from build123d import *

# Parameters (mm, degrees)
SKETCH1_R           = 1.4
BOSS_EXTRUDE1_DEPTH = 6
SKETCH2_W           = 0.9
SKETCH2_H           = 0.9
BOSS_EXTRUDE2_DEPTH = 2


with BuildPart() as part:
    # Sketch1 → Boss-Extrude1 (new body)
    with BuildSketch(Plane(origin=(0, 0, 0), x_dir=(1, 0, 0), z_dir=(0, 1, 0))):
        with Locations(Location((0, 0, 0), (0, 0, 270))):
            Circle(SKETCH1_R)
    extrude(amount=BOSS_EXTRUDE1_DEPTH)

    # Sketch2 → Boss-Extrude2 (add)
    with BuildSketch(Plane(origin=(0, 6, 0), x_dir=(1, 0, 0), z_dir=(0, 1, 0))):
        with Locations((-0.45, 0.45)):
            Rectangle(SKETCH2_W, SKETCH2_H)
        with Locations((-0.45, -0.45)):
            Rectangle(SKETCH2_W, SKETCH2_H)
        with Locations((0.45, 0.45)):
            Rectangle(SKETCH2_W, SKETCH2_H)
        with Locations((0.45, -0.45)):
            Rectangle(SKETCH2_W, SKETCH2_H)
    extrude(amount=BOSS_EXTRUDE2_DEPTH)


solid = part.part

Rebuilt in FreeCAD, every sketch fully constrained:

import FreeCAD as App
import Part
import Sketcher
from FreeCAD import Vector


def add_polygon(sketch, points):
    """Adds a closed chain of lines whose ends are joined by coincident constraints."""
    first, n = sketch.GeometryCount, len(points)
    for a, b in zip(points, points[1:] + points[:1]):
        sketch.addGeometry(Part.LineSegment(App.Vector(*a, 0), App.Vector(*b, 0)), False)
    for i in range(n):
        sketch.addConstraint(Sketcher.Constraint("Coincident", first + i, 2, first + (i + 1) % n, 1))

doc = App.newDocument("Part")
body = doc.addObject("PartDesign::Body", "Body")

sketch1 = body.newObject("Sketcher::SketchObject", "Sketch")
sketch1.AttachmentSupport = (doc.getObject("XZ_Plane"), [""])
sketch1.MapMode = "FlatFace"
sketch1.addGeometry(Part.Circle(Vector(0, 0, 0), Vector(0, 0, 1), 1.4), False)
sketch1.addConstraint([
    Sketcher.Constraint("Coincident", 0, 3, -1, 1),
    Sketcher.Constraint("Diameter", 0, 2.8),
])
pad1 = body.newObject("PartDesign::Pad", "Pad")
pad1.Profile = sketch1
pad1.Length = 6
pad1.Reversed = True

sketch2 = body.newObject("Sketcher::SketchObject", "Sketch001")
sketch2.AttachmentSupport = (doc.getObject("XZ_Plane"), [""])
sketch2.MapMode = "FlatFace"
sketch2.AttachmentOffset = App.Placement(Vector(0, 0, -6), App.Rotation())
add_polygon(sketch2, [(-0.9, -0.9), (-0.9, 0.9), (0.9, 0.9), (0.9, -0.9)])
sketch2.addConstraint([
    Sketcher.Constraint("Vertical", 0),
    Sketcher.Constraint("Horizontal", 1),
    Sketcher.Constraint("Vertical", 2),
    Sketcher.Constraint("Horizontal", 3),
    Sketcher.Constraint("Symmetric", 0, 2, 2, 2, -1, 1),
    Sketcher.Constraint("Equal", 3, 0),
    Sketcher.Constraint("DistanceX", 1, 1, 1, 2, 1.8),
])
pad2 = body.newObject("PartDesign::Pad", "Pad001")
pad2.Profile = sketch2
pad2.Length = 2
pad2.Reversed = True

doc.recompute()
